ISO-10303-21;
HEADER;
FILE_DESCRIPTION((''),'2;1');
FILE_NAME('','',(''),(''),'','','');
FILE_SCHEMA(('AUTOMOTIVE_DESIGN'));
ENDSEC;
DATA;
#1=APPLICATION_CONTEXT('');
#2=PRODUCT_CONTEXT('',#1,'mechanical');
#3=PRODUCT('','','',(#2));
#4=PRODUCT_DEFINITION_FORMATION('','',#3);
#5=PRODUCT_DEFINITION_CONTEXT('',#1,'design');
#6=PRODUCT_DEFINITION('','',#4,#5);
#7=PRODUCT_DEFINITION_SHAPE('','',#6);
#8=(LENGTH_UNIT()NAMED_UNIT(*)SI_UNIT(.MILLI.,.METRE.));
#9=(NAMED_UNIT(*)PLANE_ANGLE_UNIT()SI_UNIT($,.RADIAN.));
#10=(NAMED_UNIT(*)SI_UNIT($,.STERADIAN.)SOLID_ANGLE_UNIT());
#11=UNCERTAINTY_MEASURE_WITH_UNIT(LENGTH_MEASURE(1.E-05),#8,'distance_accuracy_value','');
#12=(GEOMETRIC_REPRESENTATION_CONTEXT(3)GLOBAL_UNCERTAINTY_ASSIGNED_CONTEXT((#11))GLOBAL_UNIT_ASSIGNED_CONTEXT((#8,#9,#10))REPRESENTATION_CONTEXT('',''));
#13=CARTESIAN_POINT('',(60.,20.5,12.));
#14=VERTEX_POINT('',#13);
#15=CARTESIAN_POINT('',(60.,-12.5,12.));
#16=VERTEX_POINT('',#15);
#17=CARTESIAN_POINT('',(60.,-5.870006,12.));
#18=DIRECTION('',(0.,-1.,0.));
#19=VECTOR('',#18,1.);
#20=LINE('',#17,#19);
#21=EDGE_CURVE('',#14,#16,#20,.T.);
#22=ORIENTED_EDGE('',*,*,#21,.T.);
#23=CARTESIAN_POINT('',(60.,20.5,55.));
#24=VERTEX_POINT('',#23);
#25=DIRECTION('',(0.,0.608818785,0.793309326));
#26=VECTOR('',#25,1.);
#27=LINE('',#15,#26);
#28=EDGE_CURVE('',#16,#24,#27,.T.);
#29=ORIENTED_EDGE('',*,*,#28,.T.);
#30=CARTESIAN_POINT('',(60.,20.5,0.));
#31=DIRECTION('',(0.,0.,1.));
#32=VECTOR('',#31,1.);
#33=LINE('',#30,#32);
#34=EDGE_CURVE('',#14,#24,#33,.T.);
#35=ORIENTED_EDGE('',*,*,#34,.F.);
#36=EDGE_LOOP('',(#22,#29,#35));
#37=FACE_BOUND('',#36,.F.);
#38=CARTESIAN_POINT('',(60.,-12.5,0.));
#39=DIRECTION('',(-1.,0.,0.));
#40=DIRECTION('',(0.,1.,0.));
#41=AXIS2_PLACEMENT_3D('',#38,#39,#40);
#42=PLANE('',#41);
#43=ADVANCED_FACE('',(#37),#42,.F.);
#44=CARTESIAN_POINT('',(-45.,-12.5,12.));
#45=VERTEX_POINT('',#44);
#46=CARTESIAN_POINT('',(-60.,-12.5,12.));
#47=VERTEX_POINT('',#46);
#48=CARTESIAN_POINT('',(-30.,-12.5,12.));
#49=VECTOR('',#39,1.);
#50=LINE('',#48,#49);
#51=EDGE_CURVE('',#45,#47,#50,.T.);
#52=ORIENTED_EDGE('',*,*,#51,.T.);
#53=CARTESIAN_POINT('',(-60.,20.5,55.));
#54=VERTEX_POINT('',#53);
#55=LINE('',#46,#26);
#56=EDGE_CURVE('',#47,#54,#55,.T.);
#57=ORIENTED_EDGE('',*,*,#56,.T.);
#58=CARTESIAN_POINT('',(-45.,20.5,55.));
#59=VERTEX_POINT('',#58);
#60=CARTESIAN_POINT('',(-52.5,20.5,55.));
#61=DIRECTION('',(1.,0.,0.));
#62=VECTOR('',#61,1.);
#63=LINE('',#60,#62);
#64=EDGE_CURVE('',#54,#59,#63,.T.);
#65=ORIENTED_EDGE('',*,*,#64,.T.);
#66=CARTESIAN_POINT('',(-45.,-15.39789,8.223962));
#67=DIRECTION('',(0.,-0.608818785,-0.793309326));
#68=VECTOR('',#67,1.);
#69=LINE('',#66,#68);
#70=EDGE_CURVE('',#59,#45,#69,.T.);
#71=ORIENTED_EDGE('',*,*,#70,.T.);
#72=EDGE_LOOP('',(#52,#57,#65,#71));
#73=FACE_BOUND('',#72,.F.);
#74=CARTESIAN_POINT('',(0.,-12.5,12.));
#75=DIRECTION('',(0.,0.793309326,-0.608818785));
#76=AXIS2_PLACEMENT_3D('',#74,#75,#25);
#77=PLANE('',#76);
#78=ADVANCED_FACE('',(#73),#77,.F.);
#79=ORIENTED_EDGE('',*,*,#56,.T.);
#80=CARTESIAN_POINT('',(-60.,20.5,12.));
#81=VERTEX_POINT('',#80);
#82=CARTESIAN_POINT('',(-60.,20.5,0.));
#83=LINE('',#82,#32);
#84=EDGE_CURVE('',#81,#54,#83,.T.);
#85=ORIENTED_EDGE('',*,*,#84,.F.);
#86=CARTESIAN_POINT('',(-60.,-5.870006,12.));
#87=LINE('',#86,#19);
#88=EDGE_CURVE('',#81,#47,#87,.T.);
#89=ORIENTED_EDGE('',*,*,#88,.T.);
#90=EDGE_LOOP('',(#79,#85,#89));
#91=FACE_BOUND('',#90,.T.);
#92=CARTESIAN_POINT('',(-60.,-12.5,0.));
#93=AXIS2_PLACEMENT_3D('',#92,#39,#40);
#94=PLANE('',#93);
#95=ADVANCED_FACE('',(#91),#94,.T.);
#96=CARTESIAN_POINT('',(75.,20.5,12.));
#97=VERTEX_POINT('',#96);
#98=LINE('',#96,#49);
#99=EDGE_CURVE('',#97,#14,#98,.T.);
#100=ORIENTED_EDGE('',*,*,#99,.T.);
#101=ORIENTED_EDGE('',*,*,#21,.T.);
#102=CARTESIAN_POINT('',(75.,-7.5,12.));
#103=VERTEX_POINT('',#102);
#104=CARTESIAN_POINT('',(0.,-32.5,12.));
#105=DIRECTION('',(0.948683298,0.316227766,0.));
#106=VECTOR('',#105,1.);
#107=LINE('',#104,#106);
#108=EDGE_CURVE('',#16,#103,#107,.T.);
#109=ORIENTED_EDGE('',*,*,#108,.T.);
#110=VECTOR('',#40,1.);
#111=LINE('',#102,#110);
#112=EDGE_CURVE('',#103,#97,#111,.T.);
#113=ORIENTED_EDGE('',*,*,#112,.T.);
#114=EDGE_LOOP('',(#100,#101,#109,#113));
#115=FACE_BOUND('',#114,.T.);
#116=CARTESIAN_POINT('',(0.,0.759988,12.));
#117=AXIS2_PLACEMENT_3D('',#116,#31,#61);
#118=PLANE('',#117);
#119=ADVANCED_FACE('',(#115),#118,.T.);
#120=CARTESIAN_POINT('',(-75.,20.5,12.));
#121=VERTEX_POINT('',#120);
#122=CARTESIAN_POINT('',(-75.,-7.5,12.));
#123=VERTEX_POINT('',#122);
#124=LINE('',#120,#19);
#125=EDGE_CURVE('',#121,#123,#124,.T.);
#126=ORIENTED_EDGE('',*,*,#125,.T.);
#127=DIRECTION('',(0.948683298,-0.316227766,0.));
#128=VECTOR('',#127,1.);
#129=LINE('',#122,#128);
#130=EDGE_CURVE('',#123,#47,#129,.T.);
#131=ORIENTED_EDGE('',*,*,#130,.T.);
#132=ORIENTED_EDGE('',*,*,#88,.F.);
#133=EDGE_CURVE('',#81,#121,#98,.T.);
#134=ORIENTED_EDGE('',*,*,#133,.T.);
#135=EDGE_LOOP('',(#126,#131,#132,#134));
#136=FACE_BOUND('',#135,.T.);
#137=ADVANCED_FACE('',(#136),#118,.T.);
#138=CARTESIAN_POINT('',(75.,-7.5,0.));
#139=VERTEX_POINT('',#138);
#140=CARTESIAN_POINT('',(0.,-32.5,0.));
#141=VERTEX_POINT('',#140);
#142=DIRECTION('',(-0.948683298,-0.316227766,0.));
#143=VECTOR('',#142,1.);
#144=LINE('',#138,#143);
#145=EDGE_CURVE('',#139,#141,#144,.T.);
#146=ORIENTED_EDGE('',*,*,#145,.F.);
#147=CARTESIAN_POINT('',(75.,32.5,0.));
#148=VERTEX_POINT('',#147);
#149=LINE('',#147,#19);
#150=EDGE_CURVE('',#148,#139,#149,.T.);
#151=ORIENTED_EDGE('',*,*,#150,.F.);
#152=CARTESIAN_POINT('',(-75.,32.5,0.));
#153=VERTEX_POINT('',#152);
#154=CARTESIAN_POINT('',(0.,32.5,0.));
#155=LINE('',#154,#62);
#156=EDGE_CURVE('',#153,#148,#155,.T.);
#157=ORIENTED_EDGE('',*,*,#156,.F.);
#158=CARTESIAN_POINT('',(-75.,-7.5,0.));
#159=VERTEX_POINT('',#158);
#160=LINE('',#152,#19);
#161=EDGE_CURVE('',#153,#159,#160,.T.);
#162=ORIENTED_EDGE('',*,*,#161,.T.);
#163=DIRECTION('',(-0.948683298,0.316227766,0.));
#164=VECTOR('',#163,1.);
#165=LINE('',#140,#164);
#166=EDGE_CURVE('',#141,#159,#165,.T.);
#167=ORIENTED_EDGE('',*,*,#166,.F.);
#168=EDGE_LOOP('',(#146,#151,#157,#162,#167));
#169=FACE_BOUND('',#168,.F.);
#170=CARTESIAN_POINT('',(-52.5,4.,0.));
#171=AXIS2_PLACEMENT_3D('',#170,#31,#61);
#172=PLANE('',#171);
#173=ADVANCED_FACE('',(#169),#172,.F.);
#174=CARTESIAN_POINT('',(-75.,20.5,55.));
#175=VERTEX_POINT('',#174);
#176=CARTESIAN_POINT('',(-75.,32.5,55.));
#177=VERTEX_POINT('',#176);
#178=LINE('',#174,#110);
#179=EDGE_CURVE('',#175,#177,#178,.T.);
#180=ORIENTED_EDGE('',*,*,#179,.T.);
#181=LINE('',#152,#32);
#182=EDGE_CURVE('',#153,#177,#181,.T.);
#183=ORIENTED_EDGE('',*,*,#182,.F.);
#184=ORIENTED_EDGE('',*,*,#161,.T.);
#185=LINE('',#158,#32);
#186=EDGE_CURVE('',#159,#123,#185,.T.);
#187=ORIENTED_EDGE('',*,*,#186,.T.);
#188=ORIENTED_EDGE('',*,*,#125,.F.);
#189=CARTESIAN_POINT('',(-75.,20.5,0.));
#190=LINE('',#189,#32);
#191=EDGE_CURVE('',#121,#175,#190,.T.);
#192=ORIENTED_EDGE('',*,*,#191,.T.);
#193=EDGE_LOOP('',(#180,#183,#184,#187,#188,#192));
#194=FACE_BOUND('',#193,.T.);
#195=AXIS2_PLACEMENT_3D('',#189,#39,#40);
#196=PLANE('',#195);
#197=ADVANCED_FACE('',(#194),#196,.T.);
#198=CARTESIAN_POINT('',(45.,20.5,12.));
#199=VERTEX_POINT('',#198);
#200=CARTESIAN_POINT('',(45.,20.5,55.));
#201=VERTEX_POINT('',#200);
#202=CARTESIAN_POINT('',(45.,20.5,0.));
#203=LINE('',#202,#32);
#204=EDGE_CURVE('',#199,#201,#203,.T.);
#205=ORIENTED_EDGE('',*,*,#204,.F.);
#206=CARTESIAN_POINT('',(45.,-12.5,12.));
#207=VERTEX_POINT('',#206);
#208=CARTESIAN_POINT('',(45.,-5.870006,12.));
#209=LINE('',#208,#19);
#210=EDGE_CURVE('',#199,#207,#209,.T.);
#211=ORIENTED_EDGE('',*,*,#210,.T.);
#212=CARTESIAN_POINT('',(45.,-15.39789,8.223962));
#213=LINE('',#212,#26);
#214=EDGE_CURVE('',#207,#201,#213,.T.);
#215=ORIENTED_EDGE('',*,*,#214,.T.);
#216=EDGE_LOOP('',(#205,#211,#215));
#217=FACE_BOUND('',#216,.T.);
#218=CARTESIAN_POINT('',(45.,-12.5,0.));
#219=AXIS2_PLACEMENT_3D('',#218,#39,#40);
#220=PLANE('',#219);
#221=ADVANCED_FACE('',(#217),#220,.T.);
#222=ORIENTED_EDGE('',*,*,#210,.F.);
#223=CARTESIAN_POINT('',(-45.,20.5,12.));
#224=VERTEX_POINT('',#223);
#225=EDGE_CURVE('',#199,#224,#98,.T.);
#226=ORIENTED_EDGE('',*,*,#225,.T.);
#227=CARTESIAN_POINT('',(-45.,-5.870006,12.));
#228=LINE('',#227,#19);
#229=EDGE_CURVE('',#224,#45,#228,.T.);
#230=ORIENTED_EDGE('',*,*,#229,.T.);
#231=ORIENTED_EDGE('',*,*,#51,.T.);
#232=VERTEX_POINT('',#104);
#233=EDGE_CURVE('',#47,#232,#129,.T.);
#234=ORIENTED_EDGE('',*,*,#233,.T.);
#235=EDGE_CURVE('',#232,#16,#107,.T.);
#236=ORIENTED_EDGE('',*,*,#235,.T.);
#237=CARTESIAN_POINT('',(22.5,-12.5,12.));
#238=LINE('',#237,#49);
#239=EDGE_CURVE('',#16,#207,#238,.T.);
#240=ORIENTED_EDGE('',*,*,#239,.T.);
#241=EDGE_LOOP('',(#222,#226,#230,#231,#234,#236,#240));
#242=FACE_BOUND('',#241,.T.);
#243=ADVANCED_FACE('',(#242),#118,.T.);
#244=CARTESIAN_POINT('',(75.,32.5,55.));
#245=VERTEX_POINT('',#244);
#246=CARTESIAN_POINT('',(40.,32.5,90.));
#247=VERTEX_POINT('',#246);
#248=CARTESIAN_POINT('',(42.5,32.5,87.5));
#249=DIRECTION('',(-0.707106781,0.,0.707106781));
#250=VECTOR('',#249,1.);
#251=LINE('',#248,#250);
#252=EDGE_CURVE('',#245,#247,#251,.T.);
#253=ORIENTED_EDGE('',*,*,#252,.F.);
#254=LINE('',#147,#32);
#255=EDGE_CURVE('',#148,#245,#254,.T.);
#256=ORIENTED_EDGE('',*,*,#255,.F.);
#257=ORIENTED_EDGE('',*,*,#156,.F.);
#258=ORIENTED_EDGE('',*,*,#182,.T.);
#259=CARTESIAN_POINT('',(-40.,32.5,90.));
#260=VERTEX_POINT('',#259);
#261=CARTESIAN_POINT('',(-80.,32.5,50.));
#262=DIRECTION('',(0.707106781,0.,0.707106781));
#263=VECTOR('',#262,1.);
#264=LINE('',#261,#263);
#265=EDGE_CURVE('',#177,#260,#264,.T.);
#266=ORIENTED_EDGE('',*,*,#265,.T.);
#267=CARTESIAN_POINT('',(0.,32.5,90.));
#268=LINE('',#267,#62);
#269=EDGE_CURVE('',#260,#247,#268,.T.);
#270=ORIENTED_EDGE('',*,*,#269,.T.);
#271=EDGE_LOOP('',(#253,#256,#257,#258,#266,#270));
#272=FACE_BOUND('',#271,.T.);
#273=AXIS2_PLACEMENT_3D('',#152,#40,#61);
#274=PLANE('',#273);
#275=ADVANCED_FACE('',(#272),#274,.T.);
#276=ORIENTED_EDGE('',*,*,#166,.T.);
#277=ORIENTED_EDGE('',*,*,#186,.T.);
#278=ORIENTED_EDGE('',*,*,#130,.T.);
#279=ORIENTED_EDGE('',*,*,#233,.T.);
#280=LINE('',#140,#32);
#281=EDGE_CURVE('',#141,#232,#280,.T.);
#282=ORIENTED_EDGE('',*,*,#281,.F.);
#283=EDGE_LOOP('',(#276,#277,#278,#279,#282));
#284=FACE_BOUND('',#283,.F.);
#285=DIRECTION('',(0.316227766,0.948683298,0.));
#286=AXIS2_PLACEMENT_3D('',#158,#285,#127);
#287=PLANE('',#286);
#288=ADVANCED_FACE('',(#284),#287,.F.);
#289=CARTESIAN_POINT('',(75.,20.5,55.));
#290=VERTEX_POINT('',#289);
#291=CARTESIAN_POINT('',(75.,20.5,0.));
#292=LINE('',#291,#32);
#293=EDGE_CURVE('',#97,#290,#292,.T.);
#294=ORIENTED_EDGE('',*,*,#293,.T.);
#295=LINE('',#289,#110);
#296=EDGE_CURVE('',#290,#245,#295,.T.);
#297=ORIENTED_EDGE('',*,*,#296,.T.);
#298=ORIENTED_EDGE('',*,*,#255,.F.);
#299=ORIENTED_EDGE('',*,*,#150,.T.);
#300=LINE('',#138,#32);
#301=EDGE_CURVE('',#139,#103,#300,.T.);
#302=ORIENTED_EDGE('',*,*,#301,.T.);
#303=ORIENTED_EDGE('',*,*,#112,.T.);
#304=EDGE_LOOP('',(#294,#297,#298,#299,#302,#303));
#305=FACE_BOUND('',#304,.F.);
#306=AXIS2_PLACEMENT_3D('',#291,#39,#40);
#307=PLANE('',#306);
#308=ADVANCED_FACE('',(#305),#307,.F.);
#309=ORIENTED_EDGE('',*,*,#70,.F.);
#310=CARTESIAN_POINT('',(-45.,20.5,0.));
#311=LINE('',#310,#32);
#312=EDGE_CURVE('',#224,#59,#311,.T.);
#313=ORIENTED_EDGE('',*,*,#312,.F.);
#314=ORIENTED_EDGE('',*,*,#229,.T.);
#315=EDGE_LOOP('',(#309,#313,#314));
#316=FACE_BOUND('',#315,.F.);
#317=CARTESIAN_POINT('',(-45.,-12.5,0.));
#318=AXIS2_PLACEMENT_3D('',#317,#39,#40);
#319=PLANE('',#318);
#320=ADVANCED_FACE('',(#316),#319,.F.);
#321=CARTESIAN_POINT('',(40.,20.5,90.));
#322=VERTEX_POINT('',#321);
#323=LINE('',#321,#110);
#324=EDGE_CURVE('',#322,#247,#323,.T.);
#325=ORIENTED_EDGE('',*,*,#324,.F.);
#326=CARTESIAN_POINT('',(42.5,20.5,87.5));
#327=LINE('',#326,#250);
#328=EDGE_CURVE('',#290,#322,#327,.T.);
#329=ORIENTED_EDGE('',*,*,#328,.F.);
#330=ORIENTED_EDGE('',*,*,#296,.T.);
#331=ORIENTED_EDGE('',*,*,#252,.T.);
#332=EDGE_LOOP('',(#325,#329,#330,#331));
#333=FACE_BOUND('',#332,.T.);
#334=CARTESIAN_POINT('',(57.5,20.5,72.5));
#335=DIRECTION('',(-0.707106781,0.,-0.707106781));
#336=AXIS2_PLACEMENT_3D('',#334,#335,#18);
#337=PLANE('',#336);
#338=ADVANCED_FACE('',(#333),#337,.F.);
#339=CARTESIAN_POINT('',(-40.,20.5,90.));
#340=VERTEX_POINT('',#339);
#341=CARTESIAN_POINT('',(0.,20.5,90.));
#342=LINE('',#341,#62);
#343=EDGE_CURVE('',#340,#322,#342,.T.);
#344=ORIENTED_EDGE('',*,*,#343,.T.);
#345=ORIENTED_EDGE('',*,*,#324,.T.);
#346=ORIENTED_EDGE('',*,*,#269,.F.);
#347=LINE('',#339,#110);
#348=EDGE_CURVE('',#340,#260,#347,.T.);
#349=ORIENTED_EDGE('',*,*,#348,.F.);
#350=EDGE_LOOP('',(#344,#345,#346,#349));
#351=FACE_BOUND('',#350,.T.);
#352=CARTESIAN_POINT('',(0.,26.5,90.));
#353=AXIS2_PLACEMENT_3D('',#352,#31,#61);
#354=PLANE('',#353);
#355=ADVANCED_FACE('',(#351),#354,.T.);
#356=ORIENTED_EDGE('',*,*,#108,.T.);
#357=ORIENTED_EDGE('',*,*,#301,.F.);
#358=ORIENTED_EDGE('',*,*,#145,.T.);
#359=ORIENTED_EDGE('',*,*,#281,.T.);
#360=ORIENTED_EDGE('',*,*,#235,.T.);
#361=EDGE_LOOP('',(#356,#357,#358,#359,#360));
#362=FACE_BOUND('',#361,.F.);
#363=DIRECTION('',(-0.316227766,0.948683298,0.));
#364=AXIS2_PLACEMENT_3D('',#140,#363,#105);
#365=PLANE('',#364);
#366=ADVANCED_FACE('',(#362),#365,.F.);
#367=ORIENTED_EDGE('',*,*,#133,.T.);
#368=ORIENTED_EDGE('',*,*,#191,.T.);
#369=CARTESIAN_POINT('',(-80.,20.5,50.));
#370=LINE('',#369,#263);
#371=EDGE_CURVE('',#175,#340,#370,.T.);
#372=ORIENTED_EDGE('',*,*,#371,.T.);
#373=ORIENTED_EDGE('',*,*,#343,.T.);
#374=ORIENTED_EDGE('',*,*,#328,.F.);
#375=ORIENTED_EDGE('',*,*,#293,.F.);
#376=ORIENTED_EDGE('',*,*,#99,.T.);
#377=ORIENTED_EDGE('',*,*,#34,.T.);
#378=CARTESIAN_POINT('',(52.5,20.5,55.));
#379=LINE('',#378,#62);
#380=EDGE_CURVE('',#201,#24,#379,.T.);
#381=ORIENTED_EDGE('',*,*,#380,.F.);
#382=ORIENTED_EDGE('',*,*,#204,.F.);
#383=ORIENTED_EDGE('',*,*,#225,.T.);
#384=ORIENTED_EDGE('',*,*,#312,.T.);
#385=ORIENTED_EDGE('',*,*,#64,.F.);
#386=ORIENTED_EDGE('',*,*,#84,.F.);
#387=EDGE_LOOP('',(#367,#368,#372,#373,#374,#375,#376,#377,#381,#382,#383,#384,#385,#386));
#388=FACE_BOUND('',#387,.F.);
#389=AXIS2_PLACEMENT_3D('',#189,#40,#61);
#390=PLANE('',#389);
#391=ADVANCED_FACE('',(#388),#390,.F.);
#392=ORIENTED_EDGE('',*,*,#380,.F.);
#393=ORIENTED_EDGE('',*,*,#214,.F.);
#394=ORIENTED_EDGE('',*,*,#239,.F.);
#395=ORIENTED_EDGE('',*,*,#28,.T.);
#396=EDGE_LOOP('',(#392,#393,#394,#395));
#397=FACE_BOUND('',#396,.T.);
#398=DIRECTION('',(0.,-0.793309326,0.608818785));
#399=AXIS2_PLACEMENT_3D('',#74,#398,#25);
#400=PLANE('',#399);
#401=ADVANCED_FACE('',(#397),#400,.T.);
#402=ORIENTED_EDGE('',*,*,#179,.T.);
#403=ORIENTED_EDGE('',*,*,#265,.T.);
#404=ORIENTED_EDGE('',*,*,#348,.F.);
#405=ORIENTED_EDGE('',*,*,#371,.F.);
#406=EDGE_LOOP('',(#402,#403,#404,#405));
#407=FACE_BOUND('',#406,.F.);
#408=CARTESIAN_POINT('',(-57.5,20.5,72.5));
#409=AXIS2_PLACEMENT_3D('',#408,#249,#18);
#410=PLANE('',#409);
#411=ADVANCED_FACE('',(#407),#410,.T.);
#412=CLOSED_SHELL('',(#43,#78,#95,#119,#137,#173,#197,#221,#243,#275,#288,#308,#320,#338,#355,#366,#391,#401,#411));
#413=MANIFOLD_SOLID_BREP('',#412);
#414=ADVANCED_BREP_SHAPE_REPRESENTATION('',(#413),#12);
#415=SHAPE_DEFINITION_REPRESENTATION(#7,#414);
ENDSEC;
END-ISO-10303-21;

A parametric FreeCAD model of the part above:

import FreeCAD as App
import Part
import Sketcher

V = App.Vector
Q = App.Units.Quantity


def edges_at(feature, points):
    """Names of the edges that pass closest to the given points."""
    edges = feature.Shape.Edges
    near = lambda p: min(range(len(edges)), key=lambda i: edges[i].distToShape(Part.Vertex(*p))[0])
    return sorted({f"Edge{near(p) + 1}" for p in points})

doc = App.newDocument("Part")
body = doc.addObject("PartDesign::Body", "Body")

# Sketch on XY plane
sketch1 = body.newObject("Sketcher::SketchObject", "Sketch")
sketch1.AttachmentSupport = (doc.getObject("XY_Plane"), [""])
sketch1.MapMode = "FlatFace"
sketch1.addGeometry(Part.LineSegment(V(75, 20.5, 0), V(-75, 20.5, 0)), False)
sketch1.addGeometry(Part.LineSegment(V(-75, 20.5, 0), V(-75, -7.5, 0)), False)
sketch1.addGeometry(Part.LineSegment(V(-75, -7.5, 0), V(0, -32.5, 0)), False)
sketch1.addGeometry(Part.LineSegment(V(0, -32.5, 0), V(75, -7.5, 0)), False)
sketch1.addGeometry(Part.LineSegment(V(75, -7.5, 0), V(75, 20.5, 0)), False)
sketch1.addConstraint(Sketcher.Constraint("Coincident", 0, 2, 1, 1))
sketch1.addConstraint(Sketcher.Constraint("Coincident", 1, 2, 2, 1))
sketch1.addConstraint(Sketcher.Constraint("Coincident", 2, 2, 3, 1))
sketch1.addConstraint(Sketcher.Constraint("Coincident", 3, 2, 4, 1))
sketch1.addConstraint(Sketcher.Constraint("Coincident", 4, 2, 0, 1))
sketch1.addConstraint(Sketcher.Constraint("Horizontal", 0))
sketch1.addConstraint(Sketcher.Constraint("Vertical", 1))
sketch1.addConstraint(Sketcher.Constraint("Vertical", 4))
sketch1.addConstraint(Sketcher.Constraint("Symmetric", 1, 2, 3, 2, -2))
sketch1.addConstraint(Sketcher.Constraint("PointOnObject", 2, 2, -2))
sketch1.addConstraint(Sketcher.Constraint("DistanceX", 0, 2, 0, 1, Q("150 mm")))
sketch1.addConstraint(Sketcher.Constraint("DistanceY", 1, 2, 1, 1, Q("28 mm")))
sketch1.addConstraint(Sketcher.Constraint("DistanceY", 2, 2, 1, 2, Q("25 mm")))
sketch1.addConstraint(Sketcher.Constraint("DistanceY", -1, 1, 0, 2, Q("20.5 mm")))
pad1 = body.newObject("PartDesign::Pad", "Pad")
pad1.Profile = sketch1
pad1.Length = 12

# Sketch on XY plane
sketch2 = body.newObject("Sketcher::SketchObject", "Sketch001")
sketch2.AttachmentSupport = (doc.getObject("XY_Plane"), [""])
sketch2.MapMode = "FlatFace"
sketch2.addGeometry(Part.LineSegment(V(-75, 32.5, 0), V(-75, 20.5, 0)), False)
sketch2.addGeometry(Part.LineSegment(V(-75, 20.5, 0), V(75, 20.5, 0)), False)
sketch2.addGeometry(Part.LineSegment(V(75, 20.5, 0), V(75, 32.5, 0)), False)
sketch2.addGeometry(Part.LineSegment(V(75, 32.5, 0), V(-75, 32.5, 0)), False)
sketch2.addConstraint(Sketcher.Constraint("Coincident", 0, 2, 1, 1))
sketch2.addConstraint(Sketcher.Constraint("Coincident", 1, 2, 2, 1))
sketch2.addConstraint(Sketcher.Constraint("Coincident", 2, 2, 3, 1))
sketch2.addConstraint(Sketcher.Constraint("Coincident", 3, 2, 0, 1))
sketch2.addConstraint(Sketcher.Constraint("Vertical", 0))
sketch2.addConstraint(Sketcher.Constraint("Horizontal", 1))
sketch2.addConstraint(Sketcher.Constraint("Vertical", 2))
sketch2.addConstraint(Sketcher.Constraint("Horizontal", 3))
sketch2.addConstraint(Sketcher.Constraint("DistanceX", 1, 1, 1, 2, Q("150 mm")))
sketch2.addConstraint(Sketcher.Constraint("DistanceY", 0, 2, 0, 1, Q("12 mm")))
sketch2.addConstraint(Sketcher.Constraint("DistanceX", 0, 2, -1, 1, Q("75 mm")))
sketch2.addConstraint(Sketcher.Constraint("DistanceY", -1, 1, 0, 2, Q("20.5 mm")))
pad2 = body.newObject("PartDesign::Pad", "Pad001")
pad2.Profile = sketch2
pad2.Length = 90
doc.recompute()

chamfer = body.newObject("PartDesign::Chamfer", "Chamfer")
chamfer.Base = (pad2, edges_at(pad2, [(-75, 26.5, 90), (75, 26.5, 90)]))
chamfer.ChamferType = "Two distances"
chamfer.Size = 35
chamfer.Size2 = 35

# Sketch on XY plane
sketch3 = body.newObject("Sketcher::SketchObject", "Sketch002")
sketch3.AttachmentSupport = (doc.getObject("XY_Plane"), [""])
sketch3.MapMode = "FlatFace"
sketch3.addGeometry(Part.LineSegment(V(-60, 20.5, 0), V(-60, -12.5, 0)), False)
sketch3.addGeometry(Part.LineSegment(V(-60, -12.5, 0), V(-45, -12.5, 0)), False)
sketch3.addGeometry(Part.LineSegment(V(-45, -12.5, 0), V(-45, 20.5, 0)), False)
sketch3.addGeometry(Part.LineSegment(V(-45, 20.5, 0), V(-60, 20.5, 0)), False)
sketch3.addGeometry(Part.LineSegment(V(45, 20.5, 0), V(45, -12.5, 0)), False)
sketch3.addGeometry(Part.LineSegment(V(45, -12.5, 0), V(60, -12.5, 0)), False)
sketch3.addGeometry(Part.LineSegment(V(60, -12.5, 0), V(60, 20.5, 0)), False)
sketch3.addGeometry(Part.LineSegment(V(60, 20.5, 0), V(45, 20.5, 0)), False)
sketch3.addConstraint(Sketcher.Constraint("Coincident", 0, 2, 1, 1))
sketch3.addConstraint(Sketcher.Constraint("Coincident", 1, 2, 2, 1))
sketch3.addConstraint(Sketcher.Constraint("Coincident", 2, 2, 3, 1))
sketch3.addConstraint(Sketcher.Constraint("Coincident", 3, 2, 0, 1))
sketch3.addConstraint(Sketcher.Constraint("Coincident", 4, 2, 5, 1))
sketch3.addConstraint(Sketcher.Constraint("Coincident", 5, 2, 6, 1))
sketch3.addConstraint(Sketcher.Constraint("Coincident", 6, 2, 7, 1))
sketch3.addConstraint(Sketcher.Constraint("Coincident", 7, 2, 4, 1))
sketch3.addConstraint(Sketcher.Constraint("Vertical", 0))
sketch3.addConstraint(Sketcher.Constraint("Horizontal", 1))
sketch3.addConstraint(Sketcher.Constraint("Vertical", 2))
sketch3.addConstraint(Sketcher.Constraint("Horizontal", 3))
sketch3.addConstraint(Sketcher.Constraint("Vertical", 4))
sketch3.addConstraint(Sketcher.Constraint("Horizontal", 5))
sketch3.addConstraint(Sketcher.Constraint("Vertical", 6))
sketch3.addConstraint(Sketcher.Constraint("Horizontal", 7))
sketch3.addConstraint(Sketcher.Constraint("Symmetric", 1, 2, 4, 2, -2))
sketch3.addConstraint(Sketcher.Constraint("Symmetric", 3, 2, 6, 2, -2))
sketch3.addConstraint(Sketcher.Constraint("DistanceX", 1, 1, 1, 2, Q("15 mm")))
sketch3.addConstraint(Sketcher.Constraint("DistanceY", 0, 2, 0, 1, Q("33 mm")))
sketch3.addConstraint(Sketcher.Constraint("DistanceX", 0, 2, -1, 1, Q("60 mm")))
sketch3.addConstraint(Sketcher.Constraint("DistanceY", 0, 2, -1, 1, Q("12.5 mm")))
pad3 = body.newObject("PartDesign::Pad", "Pad002")
pad3.Profile = sketch3
pad3.Length = 55

# Sketch on YZ plane
sketch4 = body.newObject("Sketcher::SketchObject", "Sketch003")
sketch4.AttachmentSupport = (doc.getObject("YZ_Plane"), [""])
sketch4.MapMode = "FlatFace"
sketch4.addGeometry(Part.LineSegment(V(-12.5, 12, 0), V(20.5, 55, 0)), False)
sketch4.addGeometry(Part.LineSegment(V(20.5, 55, 0), V(-12.5, 55, 0)), False)
sketch4.addGeometry(Part.LineSegment(V(-12.5, 55, 0), V(-12.5, 12, 0)), False)
sketch4.addConstraint(Sketcher.Constraint("Coincident", 0, 2, 1, 1))
sketch4.addConstraint(Sketcher.Constraint("Coincident", 1, 2, 2, 1))
sketch4.addConstraint(Sketcher.Constraint("Coincident", 2, 2, 0, 1))
sketch4.addConstraint(Sketcher.Constraint("Horizontal", 1))
sketch4.addConstraint(Sketcher.Constraint("Vertical", 2))
sketch4.addConstraint(Sketcher.Constraint("DistanceX", 1, 2, 1, 1, Q("33 mm")))
sketch4.addConstraint(Sketcher.Constraint("DistanceY", 2, 2, 2, 1, Q("43 mm")))
sketch4.addConstraint(Sketcher.Constraint("DistanceY", -1, 1, 0, 2, Q("55 mm")))
sketch4.addConstraint(Sketcher.Constraint("DistanceX", -1, 1, 0, 2, Q("20.5 mm")))
pocket1 = body.newObject("PartDesign::Pocket", "Pocket")
pocket1.Profile = sketch4
pocket1.Type = "ThroughAll"
pocket1.Midplane = True

doc.recompute()
